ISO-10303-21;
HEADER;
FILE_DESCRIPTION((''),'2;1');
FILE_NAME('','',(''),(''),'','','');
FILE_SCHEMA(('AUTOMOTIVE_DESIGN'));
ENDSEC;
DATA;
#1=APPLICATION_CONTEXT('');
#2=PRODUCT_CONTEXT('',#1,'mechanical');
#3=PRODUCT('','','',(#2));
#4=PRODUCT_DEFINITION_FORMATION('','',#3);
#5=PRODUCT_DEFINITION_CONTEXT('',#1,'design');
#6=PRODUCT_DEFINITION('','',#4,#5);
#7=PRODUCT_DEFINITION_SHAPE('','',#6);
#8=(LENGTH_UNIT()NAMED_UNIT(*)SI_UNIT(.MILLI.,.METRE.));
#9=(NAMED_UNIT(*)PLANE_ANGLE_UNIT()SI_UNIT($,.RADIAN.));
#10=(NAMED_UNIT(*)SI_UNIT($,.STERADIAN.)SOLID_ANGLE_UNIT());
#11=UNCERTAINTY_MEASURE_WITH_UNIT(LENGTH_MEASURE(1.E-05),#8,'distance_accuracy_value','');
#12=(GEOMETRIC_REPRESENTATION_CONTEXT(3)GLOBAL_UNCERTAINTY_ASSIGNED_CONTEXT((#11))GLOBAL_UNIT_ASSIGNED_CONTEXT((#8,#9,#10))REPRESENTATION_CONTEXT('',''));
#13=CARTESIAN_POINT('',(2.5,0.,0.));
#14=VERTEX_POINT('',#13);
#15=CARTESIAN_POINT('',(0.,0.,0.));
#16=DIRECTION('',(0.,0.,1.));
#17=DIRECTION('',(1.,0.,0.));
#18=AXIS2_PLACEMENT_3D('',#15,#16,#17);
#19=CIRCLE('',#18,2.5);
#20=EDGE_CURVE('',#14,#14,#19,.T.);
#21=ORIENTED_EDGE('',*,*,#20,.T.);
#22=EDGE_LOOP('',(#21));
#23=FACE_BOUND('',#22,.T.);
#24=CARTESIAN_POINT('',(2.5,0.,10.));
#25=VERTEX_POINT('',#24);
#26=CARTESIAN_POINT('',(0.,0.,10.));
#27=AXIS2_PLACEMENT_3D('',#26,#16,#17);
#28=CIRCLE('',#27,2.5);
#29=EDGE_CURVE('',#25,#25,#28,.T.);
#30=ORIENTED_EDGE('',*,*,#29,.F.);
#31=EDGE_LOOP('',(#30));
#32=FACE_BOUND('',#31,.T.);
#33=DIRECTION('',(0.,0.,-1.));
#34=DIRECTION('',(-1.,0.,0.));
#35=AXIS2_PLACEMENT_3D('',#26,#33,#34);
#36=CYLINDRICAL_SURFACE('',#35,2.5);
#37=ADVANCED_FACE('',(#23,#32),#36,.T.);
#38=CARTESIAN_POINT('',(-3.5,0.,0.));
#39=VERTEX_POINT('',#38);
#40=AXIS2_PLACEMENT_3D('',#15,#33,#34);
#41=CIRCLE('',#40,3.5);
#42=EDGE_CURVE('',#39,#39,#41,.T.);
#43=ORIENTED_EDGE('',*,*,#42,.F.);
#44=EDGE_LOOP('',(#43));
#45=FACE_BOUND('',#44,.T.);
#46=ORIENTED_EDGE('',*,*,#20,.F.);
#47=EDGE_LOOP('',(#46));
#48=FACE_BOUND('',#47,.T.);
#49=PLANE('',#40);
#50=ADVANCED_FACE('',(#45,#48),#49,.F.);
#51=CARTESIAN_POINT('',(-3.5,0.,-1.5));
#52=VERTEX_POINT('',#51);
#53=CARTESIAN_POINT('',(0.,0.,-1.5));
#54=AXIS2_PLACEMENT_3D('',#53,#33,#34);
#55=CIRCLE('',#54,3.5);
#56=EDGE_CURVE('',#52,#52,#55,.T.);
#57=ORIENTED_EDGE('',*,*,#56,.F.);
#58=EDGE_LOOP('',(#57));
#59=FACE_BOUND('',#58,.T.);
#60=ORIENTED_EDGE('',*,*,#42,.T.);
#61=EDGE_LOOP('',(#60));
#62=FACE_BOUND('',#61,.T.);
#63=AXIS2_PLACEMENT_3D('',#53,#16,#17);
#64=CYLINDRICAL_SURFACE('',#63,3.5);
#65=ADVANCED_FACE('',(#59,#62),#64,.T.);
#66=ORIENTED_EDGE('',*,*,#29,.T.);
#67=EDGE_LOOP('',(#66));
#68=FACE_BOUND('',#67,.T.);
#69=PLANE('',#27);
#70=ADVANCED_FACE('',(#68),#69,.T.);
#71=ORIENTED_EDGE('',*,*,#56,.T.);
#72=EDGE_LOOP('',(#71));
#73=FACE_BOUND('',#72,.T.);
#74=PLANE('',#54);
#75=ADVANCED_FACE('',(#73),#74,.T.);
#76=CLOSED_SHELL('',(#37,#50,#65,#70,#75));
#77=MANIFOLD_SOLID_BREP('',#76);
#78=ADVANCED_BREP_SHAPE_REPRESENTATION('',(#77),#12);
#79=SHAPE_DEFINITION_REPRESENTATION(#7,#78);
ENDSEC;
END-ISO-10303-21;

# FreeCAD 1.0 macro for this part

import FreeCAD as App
import Part
import Sketcher

doc = App.newDocument("Part")
params = doc.addObject("Spreadsheet::Sheet", "Params")
for row, (alias, value) in enumerate([
    ("sketch1_diameter", "5 mm"),
    ("pad1_length", "10 mm"),
    ("sketch2_diameter", "7 mm"),
    ("pad2_length", "1.5 mm"),
], start=1):
    params.set(f"A{row}", alias)
    params.set(f"B{row}", "=" + value)
    params.setAlias(f"B{row}", alias)

body = doc.addObject("PartDesign::Body", "Body")

sketch1 = doc.addObject("Sketcher::SketchObject", "Sketch")
body.addObject(sketch1)
sketch1.AttachmentSupport = (doc.XY_Plane, [""])
sketch1.MapMode = "FlatFace"
sketch1.addGeometry(Part.Circle(App.Vector(0, 0, 0), App.Vector(0, 0, 1), 2.5), False)
sketch1.addConstraint([
    Sketcher.Constraint("Coincident", 0, 3, -1, 1),
    Sketcher.Constraint("Diameter", 0, 5.0),
])
sketch1.setExpression("Constraints[1]", "Params.sketch1_diameter")
pad1 = doc.addObject("PartDesign::Pad", "Pad")
body.addObject(pad1)
pad1.Profile = sketch1
pad1.setExpression("Length", "Params.pad1_length")

sketch2 = doc.addObject("Sketcher::SketchObject", "Sketch001")
body.addObject(sketch2)
sketch2.AttachmentSupport = (doc.XY_Plane, [""])
sketch2.MapMode = "FlatFace"
sketch2.addGeometry(Part.Circle(App.Vector(0, 0, 0), App.Vector(0, 0, 1), 3.5), False)
sketch2.addConstraint([
    Sketcher.Constraint("Coincident", 0, 3, -1, 1),
    Sketcher.Constraint("Diameter", 0, 7.0),
])
sketch2.setExpression("Constraints[1]", "Params.sketch2_diameter")
pad2 = doc.addObject("PartDesign::Pad", "Pad001")
body.addObject(pad2)
pad2.Profile = sketch2
pad2.setExpression("Length", "Params.pad2_length")
pad2.Reversed = True

doc.recompute()
